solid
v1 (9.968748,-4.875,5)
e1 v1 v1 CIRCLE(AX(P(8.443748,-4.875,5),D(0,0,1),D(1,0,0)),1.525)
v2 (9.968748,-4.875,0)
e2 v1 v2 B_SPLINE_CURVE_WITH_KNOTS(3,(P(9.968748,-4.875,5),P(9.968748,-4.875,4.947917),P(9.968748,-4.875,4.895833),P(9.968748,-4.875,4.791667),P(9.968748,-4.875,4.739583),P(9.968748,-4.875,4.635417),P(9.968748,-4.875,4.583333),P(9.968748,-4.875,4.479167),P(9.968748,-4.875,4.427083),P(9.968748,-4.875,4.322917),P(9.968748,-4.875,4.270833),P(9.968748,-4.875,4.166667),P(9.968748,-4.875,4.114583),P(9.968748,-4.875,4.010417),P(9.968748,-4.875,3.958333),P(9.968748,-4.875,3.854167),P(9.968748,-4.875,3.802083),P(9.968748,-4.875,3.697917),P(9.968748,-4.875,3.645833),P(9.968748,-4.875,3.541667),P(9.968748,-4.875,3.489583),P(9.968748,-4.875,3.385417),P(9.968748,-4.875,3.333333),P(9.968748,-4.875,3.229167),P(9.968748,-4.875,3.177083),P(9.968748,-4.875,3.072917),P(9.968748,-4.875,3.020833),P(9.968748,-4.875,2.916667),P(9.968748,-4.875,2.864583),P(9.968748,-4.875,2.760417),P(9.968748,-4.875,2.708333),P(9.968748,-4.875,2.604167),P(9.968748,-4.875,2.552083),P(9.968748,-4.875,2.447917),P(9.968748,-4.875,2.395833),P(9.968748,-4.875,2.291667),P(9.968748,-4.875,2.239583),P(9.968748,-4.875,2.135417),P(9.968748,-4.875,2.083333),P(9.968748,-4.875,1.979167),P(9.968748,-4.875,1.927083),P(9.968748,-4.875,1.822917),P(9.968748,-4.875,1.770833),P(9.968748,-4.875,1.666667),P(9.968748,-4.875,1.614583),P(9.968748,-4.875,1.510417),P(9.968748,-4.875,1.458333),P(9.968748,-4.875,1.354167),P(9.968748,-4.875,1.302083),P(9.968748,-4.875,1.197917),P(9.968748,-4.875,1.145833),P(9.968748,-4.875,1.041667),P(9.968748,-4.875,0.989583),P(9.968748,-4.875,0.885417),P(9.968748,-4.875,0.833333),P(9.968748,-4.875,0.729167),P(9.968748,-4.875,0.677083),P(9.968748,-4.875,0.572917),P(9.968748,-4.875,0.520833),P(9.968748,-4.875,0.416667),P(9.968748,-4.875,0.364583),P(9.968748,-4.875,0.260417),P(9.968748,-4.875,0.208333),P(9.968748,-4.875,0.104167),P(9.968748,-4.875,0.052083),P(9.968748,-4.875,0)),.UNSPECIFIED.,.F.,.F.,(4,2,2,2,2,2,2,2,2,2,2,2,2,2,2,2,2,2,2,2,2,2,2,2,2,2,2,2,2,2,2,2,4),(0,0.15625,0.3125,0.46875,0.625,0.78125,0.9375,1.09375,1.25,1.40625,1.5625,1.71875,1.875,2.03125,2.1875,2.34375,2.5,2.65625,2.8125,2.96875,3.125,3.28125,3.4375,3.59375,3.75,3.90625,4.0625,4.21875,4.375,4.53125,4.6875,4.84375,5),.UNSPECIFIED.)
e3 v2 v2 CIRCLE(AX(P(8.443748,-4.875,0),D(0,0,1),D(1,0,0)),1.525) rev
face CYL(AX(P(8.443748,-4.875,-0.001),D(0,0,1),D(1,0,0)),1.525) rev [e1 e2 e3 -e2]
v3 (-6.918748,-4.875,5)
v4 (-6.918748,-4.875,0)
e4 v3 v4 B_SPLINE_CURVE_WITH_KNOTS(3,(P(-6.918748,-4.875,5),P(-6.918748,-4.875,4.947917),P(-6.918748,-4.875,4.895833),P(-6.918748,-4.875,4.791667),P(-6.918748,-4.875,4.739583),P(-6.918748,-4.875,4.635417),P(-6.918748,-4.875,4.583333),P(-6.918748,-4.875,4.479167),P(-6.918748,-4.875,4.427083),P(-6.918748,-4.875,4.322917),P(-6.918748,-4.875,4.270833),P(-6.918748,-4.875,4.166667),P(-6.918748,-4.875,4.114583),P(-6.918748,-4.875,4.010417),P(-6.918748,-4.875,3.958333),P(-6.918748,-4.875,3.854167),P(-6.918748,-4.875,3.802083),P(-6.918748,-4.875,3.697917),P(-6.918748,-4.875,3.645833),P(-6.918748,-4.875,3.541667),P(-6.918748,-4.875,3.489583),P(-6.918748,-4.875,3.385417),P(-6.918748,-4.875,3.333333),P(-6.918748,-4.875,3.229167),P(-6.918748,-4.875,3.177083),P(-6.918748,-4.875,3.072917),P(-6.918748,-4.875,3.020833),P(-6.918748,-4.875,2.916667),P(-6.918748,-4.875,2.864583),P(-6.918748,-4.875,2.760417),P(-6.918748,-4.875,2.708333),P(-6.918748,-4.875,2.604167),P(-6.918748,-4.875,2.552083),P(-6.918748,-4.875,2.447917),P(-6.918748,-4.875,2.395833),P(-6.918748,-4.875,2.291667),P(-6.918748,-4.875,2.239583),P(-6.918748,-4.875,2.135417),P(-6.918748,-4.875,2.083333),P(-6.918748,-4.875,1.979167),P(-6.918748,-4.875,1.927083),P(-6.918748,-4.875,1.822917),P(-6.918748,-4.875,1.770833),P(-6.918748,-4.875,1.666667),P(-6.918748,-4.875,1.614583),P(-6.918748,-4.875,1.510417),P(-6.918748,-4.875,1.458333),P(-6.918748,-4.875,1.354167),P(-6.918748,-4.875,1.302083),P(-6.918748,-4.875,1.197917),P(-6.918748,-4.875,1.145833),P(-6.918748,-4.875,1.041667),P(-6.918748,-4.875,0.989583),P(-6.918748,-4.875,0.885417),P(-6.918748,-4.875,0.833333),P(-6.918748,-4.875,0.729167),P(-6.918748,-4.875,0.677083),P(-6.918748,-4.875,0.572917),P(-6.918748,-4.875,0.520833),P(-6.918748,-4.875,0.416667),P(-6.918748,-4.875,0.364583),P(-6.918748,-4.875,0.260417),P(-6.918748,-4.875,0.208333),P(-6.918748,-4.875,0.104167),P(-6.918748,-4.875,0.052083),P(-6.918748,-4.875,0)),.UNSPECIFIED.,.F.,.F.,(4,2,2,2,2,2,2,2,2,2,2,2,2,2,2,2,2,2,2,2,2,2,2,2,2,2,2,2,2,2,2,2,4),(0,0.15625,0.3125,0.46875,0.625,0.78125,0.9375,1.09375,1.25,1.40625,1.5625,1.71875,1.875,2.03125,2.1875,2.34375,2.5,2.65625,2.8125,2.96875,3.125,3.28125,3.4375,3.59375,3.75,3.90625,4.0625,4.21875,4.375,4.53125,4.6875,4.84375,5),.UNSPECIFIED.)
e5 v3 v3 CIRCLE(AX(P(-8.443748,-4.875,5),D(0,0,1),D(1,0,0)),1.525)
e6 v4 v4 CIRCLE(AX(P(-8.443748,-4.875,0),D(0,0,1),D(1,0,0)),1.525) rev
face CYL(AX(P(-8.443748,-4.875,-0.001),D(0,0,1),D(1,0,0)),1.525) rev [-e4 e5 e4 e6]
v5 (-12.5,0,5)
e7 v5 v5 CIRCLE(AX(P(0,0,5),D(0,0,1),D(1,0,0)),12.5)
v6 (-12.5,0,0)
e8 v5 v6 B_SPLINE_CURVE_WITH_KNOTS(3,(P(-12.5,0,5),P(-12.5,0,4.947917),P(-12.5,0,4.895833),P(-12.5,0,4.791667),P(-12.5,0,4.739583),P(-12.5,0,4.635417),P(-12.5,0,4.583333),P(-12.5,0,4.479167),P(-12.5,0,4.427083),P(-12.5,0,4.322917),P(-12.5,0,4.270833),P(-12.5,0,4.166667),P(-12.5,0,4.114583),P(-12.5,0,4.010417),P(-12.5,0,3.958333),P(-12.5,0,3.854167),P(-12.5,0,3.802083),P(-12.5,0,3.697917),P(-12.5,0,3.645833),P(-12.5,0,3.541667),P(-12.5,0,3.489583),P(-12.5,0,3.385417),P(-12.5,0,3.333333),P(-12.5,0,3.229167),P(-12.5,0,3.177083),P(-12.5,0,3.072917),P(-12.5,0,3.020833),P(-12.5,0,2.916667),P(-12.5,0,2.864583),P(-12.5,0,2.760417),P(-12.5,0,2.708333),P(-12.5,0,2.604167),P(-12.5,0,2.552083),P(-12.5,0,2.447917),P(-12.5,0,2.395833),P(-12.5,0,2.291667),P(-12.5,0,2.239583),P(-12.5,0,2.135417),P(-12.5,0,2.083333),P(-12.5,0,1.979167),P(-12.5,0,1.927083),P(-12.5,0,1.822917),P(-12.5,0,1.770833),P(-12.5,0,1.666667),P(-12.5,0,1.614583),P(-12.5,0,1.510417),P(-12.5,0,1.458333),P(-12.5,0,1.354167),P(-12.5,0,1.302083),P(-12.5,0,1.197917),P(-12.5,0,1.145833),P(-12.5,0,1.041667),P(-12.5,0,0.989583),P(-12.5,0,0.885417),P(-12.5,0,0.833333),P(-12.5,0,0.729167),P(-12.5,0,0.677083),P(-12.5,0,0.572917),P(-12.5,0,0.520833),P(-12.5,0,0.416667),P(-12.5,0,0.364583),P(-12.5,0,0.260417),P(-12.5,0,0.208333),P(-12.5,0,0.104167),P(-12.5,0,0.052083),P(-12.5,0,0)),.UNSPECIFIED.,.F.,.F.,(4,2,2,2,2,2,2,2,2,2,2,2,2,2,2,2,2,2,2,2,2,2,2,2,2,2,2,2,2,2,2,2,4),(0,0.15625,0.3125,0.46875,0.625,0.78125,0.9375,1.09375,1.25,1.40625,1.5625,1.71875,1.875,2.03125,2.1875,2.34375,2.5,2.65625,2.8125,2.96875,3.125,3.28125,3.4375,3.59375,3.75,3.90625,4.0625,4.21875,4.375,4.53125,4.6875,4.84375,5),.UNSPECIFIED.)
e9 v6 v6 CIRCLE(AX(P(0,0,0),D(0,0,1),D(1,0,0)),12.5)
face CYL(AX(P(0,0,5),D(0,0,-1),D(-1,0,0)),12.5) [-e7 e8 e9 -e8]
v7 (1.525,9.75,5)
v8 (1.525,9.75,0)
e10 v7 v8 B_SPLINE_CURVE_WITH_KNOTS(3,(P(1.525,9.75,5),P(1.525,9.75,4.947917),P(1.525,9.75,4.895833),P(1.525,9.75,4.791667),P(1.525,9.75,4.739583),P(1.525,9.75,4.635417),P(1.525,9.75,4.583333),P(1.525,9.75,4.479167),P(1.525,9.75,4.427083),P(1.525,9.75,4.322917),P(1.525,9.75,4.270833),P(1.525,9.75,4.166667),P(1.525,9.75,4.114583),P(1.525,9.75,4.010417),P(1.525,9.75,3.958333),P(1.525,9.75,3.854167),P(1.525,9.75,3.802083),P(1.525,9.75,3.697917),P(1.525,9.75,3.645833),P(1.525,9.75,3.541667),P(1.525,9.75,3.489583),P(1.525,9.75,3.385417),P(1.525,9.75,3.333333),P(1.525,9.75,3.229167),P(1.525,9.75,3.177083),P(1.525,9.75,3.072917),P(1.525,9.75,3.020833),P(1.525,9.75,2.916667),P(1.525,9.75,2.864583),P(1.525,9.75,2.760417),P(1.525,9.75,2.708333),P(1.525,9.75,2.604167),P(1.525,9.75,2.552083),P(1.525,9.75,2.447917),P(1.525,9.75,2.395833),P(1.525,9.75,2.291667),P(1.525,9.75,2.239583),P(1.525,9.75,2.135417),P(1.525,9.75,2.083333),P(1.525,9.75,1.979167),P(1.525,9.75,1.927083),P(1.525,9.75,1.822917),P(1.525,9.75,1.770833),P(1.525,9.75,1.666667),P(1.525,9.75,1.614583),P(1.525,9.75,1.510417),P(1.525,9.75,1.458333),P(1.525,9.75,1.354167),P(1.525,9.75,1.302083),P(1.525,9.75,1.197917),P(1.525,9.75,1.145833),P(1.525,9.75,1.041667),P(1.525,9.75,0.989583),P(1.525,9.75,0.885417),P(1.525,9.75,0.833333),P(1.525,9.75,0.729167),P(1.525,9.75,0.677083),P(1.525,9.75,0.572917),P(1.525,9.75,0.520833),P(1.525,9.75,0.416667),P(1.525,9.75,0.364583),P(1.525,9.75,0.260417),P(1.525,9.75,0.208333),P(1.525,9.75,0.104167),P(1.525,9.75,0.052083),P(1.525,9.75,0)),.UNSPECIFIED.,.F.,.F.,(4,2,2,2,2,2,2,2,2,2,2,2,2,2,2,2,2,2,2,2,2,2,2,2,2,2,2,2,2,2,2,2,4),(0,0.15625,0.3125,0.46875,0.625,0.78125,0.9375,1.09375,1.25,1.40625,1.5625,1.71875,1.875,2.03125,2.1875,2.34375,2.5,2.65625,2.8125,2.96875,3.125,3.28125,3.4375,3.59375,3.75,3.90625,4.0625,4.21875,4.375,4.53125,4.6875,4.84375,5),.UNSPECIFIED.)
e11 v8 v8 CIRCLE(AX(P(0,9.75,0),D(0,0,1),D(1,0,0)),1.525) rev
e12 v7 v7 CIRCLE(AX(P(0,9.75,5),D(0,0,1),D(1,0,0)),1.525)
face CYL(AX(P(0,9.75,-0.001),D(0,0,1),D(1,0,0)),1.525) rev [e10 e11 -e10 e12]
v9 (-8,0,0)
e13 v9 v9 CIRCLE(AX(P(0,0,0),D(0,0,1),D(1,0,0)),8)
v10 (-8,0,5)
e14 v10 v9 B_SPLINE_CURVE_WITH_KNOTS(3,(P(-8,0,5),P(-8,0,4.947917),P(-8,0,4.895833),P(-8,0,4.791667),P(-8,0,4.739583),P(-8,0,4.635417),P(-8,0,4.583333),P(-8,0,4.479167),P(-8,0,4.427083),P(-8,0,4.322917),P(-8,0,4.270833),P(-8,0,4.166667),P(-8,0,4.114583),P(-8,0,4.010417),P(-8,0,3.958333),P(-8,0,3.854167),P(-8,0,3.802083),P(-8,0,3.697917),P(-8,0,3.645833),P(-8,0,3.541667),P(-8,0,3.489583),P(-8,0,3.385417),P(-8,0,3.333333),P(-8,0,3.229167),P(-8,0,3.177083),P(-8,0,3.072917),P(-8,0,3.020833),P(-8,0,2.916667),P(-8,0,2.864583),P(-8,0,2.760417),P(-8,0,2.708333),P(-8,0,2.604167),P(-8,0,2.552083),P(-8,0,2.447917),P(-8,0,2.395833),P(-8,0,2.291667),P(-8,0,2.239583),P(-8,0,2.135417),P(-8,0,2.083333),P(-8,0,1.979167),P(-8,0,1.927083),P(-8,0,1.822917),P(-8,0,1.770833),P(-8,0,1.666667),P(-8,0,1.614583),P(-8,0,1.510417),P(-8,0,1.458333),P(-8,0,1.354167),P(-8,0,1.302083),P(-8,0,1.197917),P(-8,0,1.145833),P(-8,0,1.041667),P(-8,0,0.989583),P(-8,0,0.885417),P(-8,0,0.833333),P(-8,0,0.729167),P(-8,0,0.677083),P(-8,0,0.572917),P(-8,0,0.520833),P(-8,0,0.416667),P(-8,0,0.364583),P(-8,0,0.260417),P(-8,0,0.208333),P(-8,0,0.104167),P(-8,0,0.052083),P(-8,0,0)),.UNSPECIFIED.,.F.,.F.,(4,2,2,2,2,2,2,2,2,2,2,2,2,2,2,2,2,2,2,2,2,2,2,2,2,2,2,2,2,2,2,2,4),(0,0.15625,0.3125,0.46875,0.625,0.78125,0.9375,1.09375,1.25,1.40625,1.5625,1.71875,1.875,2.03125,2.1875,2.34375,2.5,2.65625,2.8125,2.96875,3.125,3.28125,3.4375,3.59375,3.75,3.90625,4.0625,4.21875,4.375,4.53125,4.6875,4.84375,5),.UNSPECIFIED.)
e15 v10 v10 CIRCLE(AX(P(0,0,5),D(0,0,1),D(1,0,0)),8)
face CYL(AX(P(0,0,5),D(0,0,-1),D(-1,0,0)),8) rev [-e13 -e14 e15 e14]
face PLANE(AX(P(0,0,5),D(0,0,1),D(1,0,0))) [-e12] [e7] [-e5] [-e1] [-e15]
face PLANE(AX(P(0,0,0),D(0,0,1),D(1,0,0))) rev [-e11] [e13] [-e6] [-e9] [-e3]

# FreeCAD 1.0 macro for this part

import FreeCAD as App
import Part
import Sketcher
Q = App.Units.Quantity

doc = App.newDocument("Part")
body = doc.addObject("PartDesign::Body", "Body")

sketch1 = doc.addObject("Sketcher::SketchObject", "Sketch")
body.addObject(sketch1)
sketch1.AttachmentSupport = (doc.XY_Plane, [""])
sketch1.MapMode = "FlatFace"
sketch1.addGeometry([
    Part.Circle(App.Vector(0, 0, 0), App.Vector(0, 0, 1), 12),
    Part.Circle(App.Vector(0, 0, 0), App.Vector(0, 0, 1), 8),
], False)
sketch1.addConstraint([
    Sketcher.Constraint("Coincident", 0, 3, -1, 1),
    Sketcher.Constraint("Coincident", 1, 3, -1, 1),
    Sketcher.Constraint("Diameter", 0, Q("25 mm")),
    Sketcher.Constraint("Diameter", 1, Q("16 mm")),
])
pad1 = doc.addObject("PartDesign::Pad", "Pad")
body.addObject(pad1)
pad1.Profile = sketch1
pad1.Length = 5

sketch2 = doc.addObject("Sketcher::SketchObject", "Sketch001")
body.addObject(sketch2)
sketch2.AttachmentSupport = (doc.XY_Plane, [""])
sketch2.MapMode = "FlatFace"
sketch2.AttachmentOffset = App.Placement(App.Vector(0, 0, 5), App.Rotation())
sketch2.addGeometry(Part.Circle(App.Vector(0, 9.8, 0), App.Vector(0, 0, 1), 1.5), False)
sketch2.addConstraint([
    Sketcher.Constraint("PointOnObject", 0, 3, -2),
    Sketcher.Constraint("Diameter", 0, Q("3.05 mm")),
    Sketcher.Constraint("DistanceY", -1, 1, 0, 3, Q("9.75 mm")),
])
pocket1 = doc.addObject("PartDesign::Pocket", "Pocket")
body.addObject(pocket1)
pocket1.Profile = sketch2
pocket1.Type = "UpToFirst"

sketch3 = doc.addObject("Sketcher::SketchObject", "Sketch002")
body.addObject(sketch3)
sketch3.AttachmentSupport = (doc.XY_Plane, [""])
sketch3.MapMode = "FlatFace"
sketch3.AttachmentOffset = App.Placement(App.Vector(0, 0, 5), App.Rotation())
sketch3.addGeometry(Part.Circle(App.Vector(8.4, -4.9, 0), App.Vector(0, 0, 1), 1.5), False)
sketch3.addConstraint([
    Sketcher.Constraint("Diameter", 0, Q("3.05 mm")),
    Sketcher.Constraint("DistanceY", 0, 3, -1, 1, Q("4.875 mm")),
    Sketcher.Constraint("DistanceX", -1, 1, 0, 3, Q("8.443748 mm")),
])
pocket2 = doc.addObject("PartDesign::Pocket", "Pocket001")
body.addObject(pocket2)
pocket2.Profile = sketch3
pocket2.Type = "UpToFirst"

sketch4 = doc.addObject("Sketcher::SketchObject", "Sketch003")
body.addObject(sketch4)
sketch4.AttachmentSupport = (doc.XY_Plane, [""])
sketch4.MapMode = "FlatFace"
sketch4.AttachmentOffset = App.Placement(App.Vector(0, 0, 5), App.Rotation())
sketch4.addGeometry(Part.Circle(App.Vector(-8.4, -4.9, 0), App.Vector(0, 0, 1), 1.5), False)
sketch4.addConstraint([
    Sketcher.Constraint("Diameter", 0, Q("3.05 mm")),
    Sketcher.Constraint("DistanceY", 0, 3, -1, 1, Q("4.875 mm")),
    Sketcher.Constraint("DistanceX", 0, 3, -1, 1, Q("8.443748 mm")),
])
pocket3 = doc.addObject("PartDesign::Pocket", "Pocket002")
body.addObject(pocket3)
pocket3.Profile = sketch4
pocket3.Type = "UpToFirst"

doc.recompute()
